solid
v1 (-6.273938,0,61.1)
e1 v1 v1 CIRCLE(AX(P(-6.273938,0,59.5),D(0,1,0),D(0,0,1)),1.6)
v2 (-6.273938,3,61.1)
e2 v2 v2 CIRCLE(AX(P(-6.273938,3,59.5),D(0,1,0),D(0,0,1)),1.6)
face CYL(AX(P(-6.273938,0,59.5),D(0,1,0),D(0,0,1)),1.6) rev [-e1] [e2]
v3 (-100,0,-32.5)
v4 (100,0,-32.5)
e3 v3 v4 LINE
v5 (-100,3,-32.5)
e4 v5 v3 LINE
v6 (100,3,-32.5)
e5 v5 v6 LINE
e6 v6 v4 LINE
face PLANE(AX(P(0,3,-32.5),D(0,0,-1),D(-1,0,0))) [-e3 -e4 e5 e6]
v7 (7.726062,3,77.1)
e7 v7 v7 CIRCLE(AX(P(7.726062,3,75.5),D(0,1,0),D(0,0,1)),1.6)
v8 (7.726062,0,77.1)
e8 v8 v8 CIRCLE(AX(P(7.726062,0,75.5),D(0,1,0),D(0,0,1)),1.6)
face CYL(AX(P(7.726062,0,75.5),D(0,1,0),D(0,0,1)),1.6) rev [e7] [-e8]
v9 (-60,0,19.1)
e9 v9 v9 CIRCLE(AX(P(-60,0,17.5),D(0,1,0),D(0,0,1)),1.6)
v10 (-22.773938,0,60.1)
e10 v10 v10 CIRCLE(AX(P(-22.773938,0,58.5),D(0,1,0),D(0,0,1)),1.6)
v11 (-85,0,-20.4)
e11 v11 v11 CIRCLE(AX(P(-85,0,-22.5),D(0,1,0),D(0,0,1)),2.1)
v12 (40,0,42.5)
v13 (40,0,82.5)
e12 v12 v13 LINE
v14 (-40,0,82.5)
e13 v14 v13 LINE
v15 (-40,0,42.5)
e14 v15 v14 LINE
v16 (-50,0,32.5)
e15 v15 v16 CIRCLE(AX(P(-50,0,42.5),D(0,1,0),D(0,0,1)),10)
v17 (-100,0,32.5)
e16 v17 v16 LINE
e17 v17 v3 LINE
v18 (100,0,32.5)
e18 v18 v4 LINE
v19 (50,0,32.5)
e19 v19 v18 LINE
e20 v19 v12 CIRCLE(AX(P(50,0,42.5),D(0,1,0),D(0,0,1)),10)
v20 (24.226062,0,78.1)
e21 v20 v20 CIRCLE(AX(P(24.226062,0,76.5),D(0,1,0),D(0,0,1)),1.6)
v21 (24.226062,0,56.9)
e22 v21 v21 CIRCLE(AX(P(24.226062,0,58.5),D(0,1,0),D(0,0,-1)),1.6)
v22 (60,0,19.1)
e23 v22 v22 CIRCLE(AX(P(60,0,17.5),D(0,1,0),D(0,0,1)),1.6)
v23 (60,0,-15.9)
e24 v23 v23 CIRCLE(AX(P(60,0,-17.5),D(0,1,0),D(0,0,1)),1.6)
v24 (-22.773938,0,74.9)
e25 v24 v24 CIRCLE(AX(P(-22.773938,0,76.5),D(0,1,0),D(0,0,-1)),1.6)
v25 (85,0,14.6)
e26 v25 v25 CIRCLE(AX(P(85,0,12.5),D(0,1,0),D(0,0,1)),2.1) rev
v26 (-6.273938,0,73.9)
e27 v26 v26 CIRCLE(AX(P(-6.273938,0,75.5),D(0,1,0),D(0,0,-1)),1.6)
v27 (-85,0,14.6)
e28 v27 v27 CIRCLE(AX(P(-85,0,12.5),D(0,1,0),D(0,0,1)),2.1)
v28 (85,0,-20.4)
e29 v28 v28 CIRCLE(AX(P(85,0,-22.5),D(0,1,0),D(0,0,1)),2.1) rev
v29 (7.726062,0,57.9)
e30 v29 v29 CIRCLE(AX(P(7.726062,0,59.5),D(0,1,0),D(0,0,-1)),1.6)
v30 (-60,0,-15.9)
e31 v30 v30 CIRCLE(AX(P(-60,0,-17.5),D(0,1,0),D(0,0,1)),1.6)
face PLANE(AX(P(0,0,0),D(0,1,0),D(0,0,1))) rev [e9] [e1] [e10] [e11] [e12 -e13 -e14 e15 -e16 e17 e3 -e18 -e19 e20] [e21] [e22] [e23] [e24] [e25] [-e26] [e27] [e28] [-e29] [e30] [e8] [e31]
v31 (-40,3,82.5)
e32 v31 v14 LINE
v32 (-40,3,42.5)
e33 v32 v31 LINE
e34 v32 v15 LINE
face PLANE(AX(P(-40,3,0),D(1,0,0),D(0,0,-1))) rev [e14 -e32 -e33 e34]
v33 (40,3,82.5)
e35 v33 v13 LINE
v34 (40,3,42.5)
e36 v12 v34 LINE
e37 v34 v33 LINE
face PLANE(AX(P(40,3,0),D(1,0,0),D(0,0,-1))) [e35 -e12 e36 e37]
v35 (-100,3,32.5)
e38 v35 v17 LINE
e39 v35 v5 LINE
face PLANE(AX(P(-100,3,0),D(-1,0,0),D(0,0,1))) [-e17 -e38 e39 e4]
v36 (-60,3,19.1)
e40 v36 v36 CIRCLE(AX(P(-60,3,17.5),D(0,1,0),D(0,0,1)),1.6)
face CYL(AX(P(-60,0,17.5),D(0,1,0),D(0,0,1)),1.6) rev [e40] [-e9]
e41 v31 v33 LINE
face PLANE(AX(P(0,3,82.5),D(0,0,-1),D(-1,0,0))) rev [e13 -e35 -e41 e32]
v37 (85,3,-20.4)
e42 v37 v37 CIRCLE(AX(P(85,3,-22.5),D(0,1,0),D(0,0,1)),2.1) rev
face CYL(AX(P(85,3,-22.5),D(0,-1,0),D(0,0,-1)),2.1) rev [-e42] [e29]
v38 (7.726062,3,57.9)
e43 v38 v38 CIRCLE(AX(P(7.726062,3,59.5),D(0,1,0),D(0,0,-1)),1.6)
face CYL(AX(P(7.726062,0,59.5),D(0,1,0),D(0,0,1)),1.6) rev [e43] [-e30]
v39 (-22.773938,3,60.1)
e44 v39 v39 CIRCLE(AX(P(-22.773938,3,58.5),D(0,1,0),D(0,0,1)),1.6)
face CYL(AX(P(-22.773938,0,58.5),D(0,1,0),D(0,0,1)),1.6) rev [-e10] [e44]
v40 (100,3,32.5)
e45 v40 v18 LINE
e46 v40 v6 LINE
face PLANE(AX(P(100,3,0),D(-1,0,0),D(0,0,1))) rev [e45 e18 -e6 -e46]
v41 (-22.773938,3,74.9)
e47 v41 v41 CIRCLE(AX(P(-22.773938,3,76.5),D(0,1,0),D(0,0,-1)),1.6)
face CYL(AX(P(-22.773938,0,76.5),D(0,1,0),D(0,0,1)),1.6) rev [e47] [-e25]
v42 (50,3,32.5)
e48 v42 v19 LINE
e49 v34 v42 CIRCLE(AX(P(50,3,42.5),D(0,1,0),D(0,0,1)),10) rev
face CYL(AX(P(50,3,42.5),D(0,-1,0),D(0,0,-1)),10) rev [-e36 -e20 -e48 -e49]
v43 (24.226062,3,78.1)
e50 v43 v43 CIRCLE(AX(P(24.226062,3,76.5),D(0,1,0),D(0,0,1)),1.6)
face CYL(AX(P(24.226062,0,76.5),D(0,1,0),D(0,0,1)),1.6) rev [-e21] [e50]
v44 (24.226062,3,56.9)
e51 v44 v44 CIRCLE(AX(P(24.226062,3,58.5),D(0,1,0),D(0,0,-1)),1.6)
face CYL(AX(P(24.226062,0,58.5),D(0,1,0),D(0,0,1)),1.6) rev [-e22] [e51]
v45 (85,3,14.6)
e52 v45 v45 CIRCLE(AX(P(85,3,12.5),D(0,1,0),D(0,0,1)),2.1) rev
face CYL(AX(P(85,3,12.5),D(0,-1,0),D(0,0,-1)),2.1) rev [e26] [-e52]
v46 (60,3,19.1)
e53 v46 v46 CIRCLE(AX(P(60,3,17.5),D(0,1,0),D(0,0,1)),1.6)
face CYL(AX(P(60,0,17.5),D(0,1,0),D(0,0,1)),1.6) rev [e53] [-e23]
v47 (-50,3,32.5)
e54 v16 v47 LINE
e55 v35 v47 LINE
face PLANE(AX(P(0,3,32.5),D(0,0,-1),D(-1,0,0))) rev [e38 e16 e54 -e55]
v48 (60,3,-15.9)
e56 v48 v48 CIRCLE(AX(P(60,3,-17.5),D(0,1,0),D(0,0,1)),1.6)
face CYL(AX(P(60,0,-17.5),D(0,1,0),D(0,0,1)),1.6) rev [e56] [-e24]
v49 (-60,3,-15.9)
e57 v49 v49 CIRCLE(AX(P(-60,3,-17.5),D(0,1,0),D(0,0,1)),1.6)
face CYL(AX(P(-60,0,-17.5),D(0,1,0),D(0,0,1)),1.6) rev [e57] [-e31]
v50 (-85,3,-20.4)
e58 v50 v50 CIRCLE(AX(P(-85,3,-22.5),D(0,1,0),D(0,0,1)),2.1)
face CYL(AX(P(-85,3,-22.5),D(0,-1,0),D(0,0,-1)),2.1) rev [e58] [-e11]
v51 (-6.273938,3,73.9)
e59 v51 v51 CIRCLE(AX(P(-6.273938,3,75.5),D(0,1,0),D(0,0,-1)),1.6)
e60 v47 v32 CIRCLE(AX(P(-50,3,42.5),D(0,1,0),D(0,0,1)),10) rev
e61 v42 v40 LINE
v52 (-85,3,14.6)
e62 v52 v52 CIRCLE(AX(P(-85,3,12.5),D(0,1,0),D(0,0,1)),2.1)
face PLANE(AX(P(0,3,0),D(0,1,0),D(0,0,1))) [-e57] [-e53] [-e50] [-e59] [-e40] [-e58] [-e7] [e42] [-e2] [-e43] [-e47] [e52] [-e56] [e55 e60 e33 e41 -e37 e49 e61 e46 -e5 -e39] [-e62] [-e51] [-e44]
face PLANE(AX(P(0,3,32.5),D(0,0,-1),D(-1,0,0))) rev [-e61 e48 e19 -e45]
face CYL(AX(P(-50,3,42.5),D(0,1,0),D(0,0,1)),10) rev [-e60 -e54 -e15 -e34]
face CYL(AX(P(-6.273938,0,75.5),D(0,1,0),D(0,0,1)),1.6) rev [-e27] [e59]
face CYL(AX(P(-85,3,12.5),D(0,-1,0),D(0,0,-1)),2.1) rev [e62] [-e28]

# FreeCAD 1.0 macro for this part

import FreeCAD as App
import Part
import Sketcher


def edges_at(feature, points):
    """Names of the edges that pass closest to the given points."""
    edges = feature.Shape.Edges
    near = lambda p: min(range(len(edges)), key=lambda i: edges[i].distToShape(Part.Vertex(*p))[0])
    return sorted({f"Edge{near(p) + 1}" for p in points})


def add_polygon(sketch, points):
    """Adds a closed chain of lines whose ends are joined by coincident constraints."""
    first, n = sketch.GeometryCount, len(points)
    for a, b in zip(points, points[1:] + points[:1]):
        sketch.addGeometry(Part.LineSegment(App.Vector(*a, 0), App.Vector(*b, 0)), False)
    for i in range(n):
        sketch.addConstraint(Sketcher.Constraint("Coincident", first + i, 2, first + (i + 1) % n, 1))

doc = App.newDocument("Part")
body = doc.addObject("PartDesign::Body", "Body")

sketch1 = body.newObject("Sketcher::SketchObject", "Sketch")
sketch1.AttachmentSupport = (doc.getObject("XZ_Plane"), [""])
sketch1.MapMode = "FlatFace"
add_polygon(sketch1, [(-100, -32.5), (-100, 32.5), (-40, 32.5), (-40, 82.5), (40, 82.5), (40, 32.5), (100, 32.5), (100, -32.5)])
sketch1.addGeometry(Part.Circle(App.Vector(-85, 12.5, 0), App.Vector(0, 0, 1), 2.1), False)
sketch1.addGeometry(Part.Circle(App.Vector(85, 12.5, 0), App.Vector(0, 0, 1), 2.1), False)
sketch1.addGeometry(Part.Circle(App.Vector(-85, -22.5, 0), App.Vector(0, 0, 1), 2.1), False)
sketch1.addGeometry(Part.Circle(App.Vector(85, -22.5, 0), App.Vector(0, 0, 1), 2.1), False)
sketch1.addConstraint([
    Sketcher.Constraint("Vertical", 0),
    Sketcher.Constraint("Horizontal", 1),
    Sketcher.Constraint("Vertical", 2),
    Sketcher.Constraint("Horizontal", 3),
    Sketcher.Constraint("Vertical", 4),
    Sketcher.Constraint("Horizontal", 5),
    Sketcher.Constraint("Vertical", 6),
    Sketcher.Constraint("Horizontal", 7),
    Sketcher.Constraint("Equal", 8, 9),
    Sketcher.Constraint("Equal", 9, 10),
    Sketcher.Constraint("Equal", 10, 11),
    Sketcher.Constraint("Symmetric", 0, 2, 6, 2, -1, 1),
    Sketcher.Constraint("Symmetric", 8, 3, 9, 3, -2),
    Sketcher.Constraint("Symmetric", 10, 3, 11, 3, -2),
    Sketcher.Constraint("Symmetric", 1, 2, 4, 2, -2),
    Sketcher.Constraint("Vertical", 8, 3, 10, 3),
    Sketcher.Constraint("Diameter", 8, 4.2),
    Sketcher.Constraint("DistanceX", 1, 1, 1, 2, 60.0),
    Sketcher.Constraint("DistanceX", 3, 1, 3, 2, 80.0),
    Sketcher.Constraint("DistanceY", 0, 1, 0, 2, 65.0),
    Sketcher.Constraint("DistanceY", 2, 1, 2, 2, 50.0),
    Sketcher.Constraint("DistanceX", 8, 3, -1, 1, 85.0),
    Sketcher.Constraint("DistanceY", 10, 3, 8, 3, 35.0),
    Sketcher.Constraint("DistanceY", 8, 3, 0, 2, 20.0),
])
pad1 = body.newObject("PartDesign::Pad", "Pad")
pad1.Profile = sketch1
pad1.Length = 3
pad1.Reversed = True

sketch2 = body.newObject("Sketcher::SketchObject", "Sketch001")
sketch2.AttachmentSupport = (doc.getObject("XZ_Plane"), [""])
sketch2.MapMode = "FlatFace"
sketch2.AttachmentOffset = App.Placement(App.Vector(0, 0, -3), App.Rotation())
sketch2.addGeometry([
    Part.Circle(App.Vector(-60, -17.5, 0), App.Vector(0, 0, 1), 1.6),
    Part.Circle(App.Vector(-60, 17.5, 0), App.Vector(0, 0, 1), 1.6),
    Part.Circle(App.Vector(60, 17.5, 0), App.Vector(0, 0, 1), 1.6),
    Part.Circle(App.Vector(60, -17.5, 0), App.Vector(0, 0, 1), 1.6),
], False)
sketch2.addConstraint([
    Sketcher.Constraint("Equal", 0, 1),
    Sketcher.Constraint("Equal", 1, 2),
    Sketcher.Constraint("Equal", 2, 3),
    Sketcher.Constraint("Symmetric", 0, 3, 2, 3, -1, 1),
    Sketcher.Constraint("Symmetric", 1, 3, 3, 3, -1, 1),
    Sketcher.Constraint("Symmetric", 1, 3, 2, 3, -2),
    Sketcher.Constraint("Diameter", 0, 3.2),
    Sketcher.Constraint("DistanceX", 0, 3, -1, 1, 60.0),
    Sketcher.Constraint("DistanceY", 0, 3, 1, 3, 35.0),
])
pocket1 = body.newObject("PartDesign::Pocket", "Pocket")
pocket1.Profile = sketch2
pocket1.Type = "ThroughAll"
pocket1.Reversed = True

sketch3 = body.newObject("Sketcher::SketchObject", "Sketch002")
sketch3.AttachmentSupport = (doc.getObject("XZ_Plane"), [""])
sketch3.MapMode = "FlatFace"
sketch3.AttachmentOffset = App.Placement(App.Vector(0, 0, -3), App.Rotation())
sketch3.addGeometry([
    Part.Circle(App.Vector(-22.8, 58.5, 0), App.Vector(0, 0, 1), 1.6),
    Part.Circle(App.Vector(24.2, 58.5, 0), App.Vector(0, 0, 1), 1.6),
    Part.Circle(App.Vector(24.2, 76.5, 0), App.Vector(0, 0, 1), 1.6),
    Part.Circle(App.Vector(-22.8, 76.5, 0), App.Vector(0, 0, 1), 1.6),
    Part.Circle(App.Vector(-6.3, 59.5, 0), App.Vector(0, 0, 1), 1.6),
    Part.Circle(App.Vector(7.7, 59.5, 0), App.Vector(0, 0, 1), 1.6),
    Part.Circle(App.Vector(7.7, 75.5, 0), App.Vector(0, 0, 1), 1.6),
    Part.Circle(App.Vector(-6.3, 75.5, 0), App.Vector(0, 0, 1), 1.6),
], False)
sketch3.addConstraint([
    Sketcher.Constraint("Equal", 0, 1),
    Sketcher.Constraint("Equal", 1, 2),
    Sketcher.Constraint("Equal", 2, 3),
    Sketcher.Constraint("Equal", 3, 4),
    Sketcher.Constraint("Equal", 4, 5),
    Sketcher.Constraint("Equal", 5, 6),
    Sketcher.Constraint("Equal", 6, 7),
    Sketcher.Constraint("Horizontal", 0, 3, 1, 3),
    Sketcher.Constraint("Horizontal", 2, 3, 3, 3),
    Sketcher.Constraint("Horizontal", 4, 3, 5, 3),
    Sketcher.Constraint("Horizontal", 6, 3, 7, 3),
    Sketcher.Constraint("Vertical", 1, 3, 2, 3),
    Sketcher.Constraint("Vertical", 0, 3, 3, 3),
    Sketcher.Constraint("Vertical", 5, 3, 6, 3),
    Sketcher.Constraint("Vertical", 4, 3, 7, 3),
    Sketcher.Constraint("Diameter", 0, 3.2),
    Sketcher.Constraint("DistanceX", 0, 3, 1, 3, 47.0),
    Sketcher.Constraint("DistanceY", 1, 3, 2, 3, 18.0),
    Sketcher.Constraint("DistanceY", 0, 3, 4, 3, 1.0),
    Sketcher.Constraint("DistanceX", 4, 3, 5, 3, 14.0),
    Sketcher.Constraint("DistanceY", 5, 3, 6, 3, 16.0),
    Sketcher.Constraint("DistanceY", -1, 1, 0, 3, 58.5),
    Sketcher.Constraint("DistanceX", 0, 3, 4, 3, 16.5),
    Sketcher.Constraint("DistanceX", 0, 3, -1, 1, 22.773938),
])
pocket2 = body.newObject("PartDesign::Pocket", "Pocket001")
pocket2.Profile = sketch3
pocket2.Type = "ThroughAll"
pocket2.Reversed = True
doc.recompute()

fillet = body.newObject("PartDesign::Fillet", "Fillet")
fillet.Base = (pocket2, edges_at(pocket2, [(40, 1.5, 32.5), (-40, 1.5, 32.5)]))
fillet.Radius = 10

doc.recompute()
